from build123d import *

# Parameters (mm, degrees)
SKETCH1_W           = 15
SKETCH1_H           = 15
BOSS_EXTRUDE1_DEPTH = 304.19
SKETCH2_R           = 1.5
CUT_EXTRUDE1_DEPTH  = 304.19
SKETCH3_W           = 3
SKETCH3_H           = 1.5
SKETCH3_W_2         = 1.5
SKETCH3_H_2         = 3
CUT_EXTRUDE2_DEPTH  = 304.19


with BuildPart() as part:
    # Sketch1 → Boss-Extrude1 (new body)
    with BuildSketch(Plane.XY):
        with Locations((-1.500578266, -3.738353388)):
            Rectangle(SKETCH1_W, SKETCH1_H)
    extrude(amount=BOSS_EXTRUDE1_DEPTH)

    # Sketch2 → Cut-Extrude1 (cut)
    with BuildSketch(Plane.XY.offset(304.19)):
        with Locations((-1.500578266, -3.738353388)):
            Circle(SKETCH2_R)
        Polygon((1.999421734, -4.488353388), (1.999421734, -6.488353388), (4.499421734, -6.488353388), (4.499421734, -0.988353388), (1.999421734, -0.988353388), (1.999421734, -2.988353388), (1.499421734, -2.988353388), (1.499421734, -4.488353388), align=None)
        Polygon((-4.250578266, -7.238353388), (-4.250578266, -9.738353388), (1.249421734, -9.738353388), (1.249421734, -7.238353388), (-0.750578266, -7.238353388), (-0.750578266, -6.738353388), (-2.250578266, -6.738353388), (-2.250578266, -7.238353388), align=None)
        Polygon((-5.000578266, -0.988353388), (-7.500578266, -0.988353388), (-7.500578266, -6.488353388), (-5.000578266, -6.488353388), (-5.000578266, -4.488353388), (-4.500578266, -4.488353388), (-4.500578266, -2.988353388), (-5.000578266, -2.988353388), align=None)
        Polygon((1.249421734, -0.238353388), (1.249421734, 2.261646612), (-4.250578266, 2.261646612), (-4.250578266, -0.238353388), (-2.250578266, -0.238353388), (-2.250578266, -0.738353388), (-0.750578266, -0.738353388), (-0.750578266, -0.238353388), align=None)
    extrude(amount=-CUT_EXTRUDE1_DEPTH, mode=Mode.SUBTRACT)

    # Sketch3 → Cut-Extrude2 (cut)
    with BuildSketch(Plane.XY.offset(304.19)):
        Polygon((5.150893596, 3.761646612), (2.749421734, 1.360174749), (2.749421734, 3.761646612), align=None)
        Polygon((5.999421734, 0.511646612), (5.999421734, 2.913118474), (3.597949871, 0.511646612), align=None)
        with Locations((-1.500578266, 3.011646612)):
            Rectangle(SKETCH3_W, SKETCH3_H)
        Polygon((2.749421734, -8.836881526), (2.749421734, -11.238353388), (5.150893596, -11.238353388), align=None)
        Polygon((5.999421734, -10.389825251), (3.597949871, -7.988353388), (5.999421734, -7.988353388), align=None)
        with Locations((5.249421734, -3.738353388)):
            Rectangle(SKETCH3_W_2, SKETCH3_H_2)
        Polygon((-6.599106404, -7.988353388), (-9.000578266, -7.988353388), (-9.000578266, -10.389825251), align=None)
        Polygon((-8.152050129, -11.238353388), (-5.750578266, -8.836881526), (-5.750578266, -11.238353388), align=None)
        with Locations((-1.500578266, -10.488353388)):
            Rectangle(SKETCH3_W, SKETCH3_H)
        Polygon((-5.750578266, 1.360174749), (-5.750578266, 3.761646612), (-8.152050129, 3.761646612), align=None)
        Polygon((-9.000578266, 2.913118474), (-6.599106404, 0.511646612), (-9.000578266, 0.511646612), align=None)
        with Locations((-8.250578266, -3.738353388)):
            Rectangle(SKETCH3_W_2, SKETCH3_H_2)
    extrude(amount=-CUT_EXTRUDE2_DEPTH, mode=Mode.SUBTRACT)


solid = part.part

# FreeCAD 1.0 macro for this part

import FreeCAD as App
import Part
import Sketcher

V = App.Vector
Q = App.Units.Quantity

doc = App.newDocument("Part")
body = doc.addObject("PartDesign::Body", "Body")

# Sketch on XY plane
sketch1 = body.newObject("Sketcher::SketchObject", "Sketch")
sketch1.AttachmentSupport = (doc.getObject("XY_Plane"), [""])
sketch1.MapMode = "FlatFace"
sketch1.addGeometry(Part.LineSegment(V(-9.000578, 3.761647, 0), V(-9.000578, -11.238353, 0)), False)
sketch1.addGeometry(Part.LineSegment(V(-9.000578, -11.238353, 0), V(5.999422, -11.238353, 0)), False)
sketch1.addGeometry(Part.LineSegment(V(5.999422, -11.238353, 0), V(5.999422, 3.761647, 0)), False)
sketch1.addGeometry(Part.LineSegment(V(5.999422, 3.761647, 0), V(-9.000578, 3.761647, 0)), False)
sketch1.addConstraint(Sketcher.Constraint("Coincident", 0, 2, 1, 1))
sketch1.addConstraint(Sketcher.Constraint("Coincident", 1, 2, 2, 1))
sketch1.addConstraint(Sketcher.Constraint("Coincident", 2, 2, 3, 1))
sketch1.addConstraint(Sketcher.Constraint("Coincident", 3, 2, 0, 1))
sketch1.addConstraint(Sketcher.Constraint("Vertical", 0))
sketch1.addConstraint(Sketcher.Constraint("Horizontal", 1))
sketch1.addConstraint(Sketcher.Constraint("Vertical", 2))
sketch1.addConstraint(Sketcher.Constraint("Horizontal", 3))
sketch1.addConstraint(Sketcher.Constraint("Equal", 3, 0))
sketch1.addConstraint(Sketcher.Constraint("DistanceX", 1, 1, 1, 2, Q("15 mm")))
sketch1.addConstraint(Sketcher.Constraint("DistanceX", 0, 2, -1, 1, Q("9.000578 mm")))
sketch1.addConstraint(Sketcher.Constraint("DistanceY", 0, 2, -1, 1, Q("11.238353 mm")))
pad1 = body.newObject("PartDesign::Pad", "Pad")
pad1.Profile = sketch1
pad1.Length = 304.19

# Sketch on XY plane
sketch2 = body.newObject("Sketcher::SketchObject", "Sketch001")
sketch2.AttachmentSupport = (doc.getObject("XY_Plane"), [""])
sketch2.MapMode = "FlatFace"
sketch2.AttachmentOffset = App.Placement(V(0, 0, 304.19), App.Rotation())
sketch2.addGeometry(Part.Circle(V(-1.500578, -3.738353, 0), V(0, 0, 1), 1.5), False)
sketch2.addGeometry(Part.LineSegment(V(1.999422, -4.488353, 0), V(1.999422, -6.488353, 0)), False)
sketch2.addGeometry(Part.LineSegment(V(1.999422, -6.488353, 0), V(4.499422, -6.488353, 0)), False)
sketch2.addGeometry(Part.LineSegment(V(4.499422, -6.488353, 0), V(4.499422, -0.988353, 0)), False)
sketch2.addGeometry(Part.LineSegment(V(4.499422, -0.988353, 0), V(1.999422, -0.988353, 0)), False)
sketch2.addGeometry(Part.LineSegment(V(1.999422, -0.988353, 0), V(1.999422, -2.988353, 0)), False)
sketch2.addGeometry(Part.LineSegment(V(1.999422, -2.988353, 0), V(1.499422, -2.988353, 0)), False)
sketch2.addGeometry(Part.LineSegment(V(1.499422, -2.988353, 0), V(1.499422, -4.488353, 0)), False)
sketch2.addGeometry(Part.LineSegment(V(1.499422, -4.488353, 0), V(1.999422, -4.488353, 0)), False)
sketch2.addGeometry(Part.LineSegment(V(-4.250578, -7.238353, 0), V(-4.250578, -9.738353, 0)), False)
sketch2.addGeometry(Part.LineSegment(V(-4.250578, -9.738353, 0), V(1.249422, -9.738353, 0)), False)
sketch2.addGeometry(Part.LineSegment(V(1.249422, -9.738353, 0), V(1.249422, -7.238353, 0)), False)
sketch2.addGeometry(Part.LineSegment(V(1.249422, -7.238353, 0), V(-0.750578, -7.238353, 0)), False)
sketch2.addGeometry(Part.LineSegment(V(-0.750578, -7.238353, 0), V(-0.750578, -6.738353, 0)), False)
sketch2.addGeometry(Part.LineSegment(V(-0.750578, -6.738353, 0), V(-2.250578, -6.738353, 0)), False)
sketch2.addGeometry(Part.LineSegment(V(-2.250578, -6.738353, 0), V(-2.250578, -7.238353, 0)), False)
sketch2.addGeometry(Part.LineSegment(V(-2.250578, -7.238353, 0), V(-4.250578, -7.238353, 0)), False)
sketch2.addGeometry(Part.LineSegment(V(-5.000578, -0.988353, 0), V(-7.500578, -0.988353, 0)), False)
sketch2.addGeometry(Part.LineSegment(V(-7.500578, -0.988353, 0), V(-7.500578, -6.488353, 0)), False)
sketch2.addGeometry(Part.LineSegment(V(-7.500578, -6.488353, 0), V(-5.000578, -6.488353, 0)), False)
sketch2.addGeometry(Part.LineSegment(V(-5.000578, -6.488353, 0), V(-5.000578, -4.488353, 0)), False)
sketch2.addGeometry(Part.LineSegment(V(-5.000578, -4.488353, 0), V(-4.500578, -4.488353, 0)), False)
sketch2.addGeometry(Part.LineSegment(V(-4.500578, -4.488353, 0), V(-4.500578, -2.988353, 0)), False)
sketch2.addGeometry(Part.LineSegment(V(-4.500578, -2.988353, 0), V(-5.000578, -2.988353, 0)), False)
sketch2.addGeometry(Part.LineSegment(V(-5.000578, -2.988353, 0), V(-5.000578, -0.988353, 0)), False)
sketch2.addGeometry(Part.LineSegment(V(1.249422, -0.238353, 0), V(1.249422, 2.261647, 0)), False)
sketch2.addGeometry(Part.LineSegment(V(1.249422, 2.261647, 0), V(-4.250578, 2.261647, 0)), False)
sketch2.addGeometry(Part.LineSegment(V(-4.250578, 2.261647, 0), V(-4.250578, -0.238353, 0)), False)
sketch2.addGeometry(Part.LineSegment(V(-4.250578, -0.238353, 0), V(-2.250578, -0.238353, 0)), False)
sketch2.addGeometry(Part.LineSegment(V(-2.250578, -0.238353, 0), V(-2.250578, -0.738353, 0)), False)
sketch2.addGeometry(Part.LineSegment(V(-2.250578, -0.738353, 0), V(-0.750578, -0.738353, 0)), False)
sketch2.addGeometry(Part.LineSegment(V(-0.750578, -0.738353, 0), V(-0.750578, -0.238353, 0)), False)
sketch2.addGeometry(Part.LineSegment(V(-0.750578, -0.238353, 0), V(1.249422, -0.238353, 0)), False)
sketch2.addConstraint(Sketcher.Constraint("Coincident", 1, 2, 2, 1))
sketch2.addConstraint(Sketcher.Constraint("Coincident", 2, 2, 3, 1))
sketch2.addConstraint(Sketcher.Constraint("Coincident", 3, 2, 4, 1))
sketch2.addConstraint(Sketcher.Constraint("Coincident", 4, 2, 5, 1))
sketch2.addConstraint(Sketcher.Constraint("Coincident", 5, 2, 6, 1))
sketch2.addConstraint(Sketcher.Constraint("Coincident", 6, 2, 7, 1))
sketch2.addConstraint(Sketcher.Constraint("Coincident", 7, 2, 8, 1))
sketch2.addConstraint(Sketcher.Constraint("Coincident", 8, 2, 1, 1))
sketch2.addConstraint(Sketcher.Constraint("Coincident", 9, 2, 10, 1))
sketch2.addConstraint(Sketcher.Constraint("Coincident", 10, 2, 11, 1))
sketch2.addConstraint(Sketcher.Constraint("Coincident", 11, 2, 12, 1))
sketch2.addConstraint(Sketcher.Constraint("Coincident", 12, 2, 13, 1))
sketch2.addConstraint(Sketcher.Constraint("Coincident", 13, 2, 14, 1))
sketch2.addConstraint(Sketcher.Constraint("Coincident", 14, 2, 15, 1))
sketch2.addConstraint(Sketcher.Constraint("Coincident", 15, 2, 16, 1))
sketch2.addConstraint(Sketcher.Constraint("Coincident", 16, 2, 9, 1))
sketch2.addConstraint(Sketcher.Constraint("Coincident", 17, 2, 18, 1))
sketch2.addConstraint(Sketcher.Constraint("Coincident", 18, 2, 19, 1))
sketch2.addConstraint(Sketcher.Constraint("Coincident", 19, 2, 20, 1))
sketch2.addConstraint(Sketcher.Constraint("Coincident", 20, 2, 21, 1))
sketch2.addConstraint(Sketcher.Constraint("Coincident", 21, 2, 22, 1))
sketch2.addConstraint(Sketcher.Constraint("Coincident", 22, 2, 23, 1))
sketch2.addConstraint(Sketcher.Constraint("Coincident", 23, 2, 24, 1))
sketch2.addConstraint(Sketcher.Constraint("Coincident", 24, 2, 17, 1))
sketch2.addConstraint(Sketcher.Constraint("Coincident", 25, 2, 26, 1))
sketch2.addConstraint(Sketcher.Constraint("Coincident", 26, 2, 27, 1))
sketch2.addConstraint(Sketcher.Constraint("Coincident", 27, 2, 28, 1))
sketch2.addConstraint(Sketcher.Constraint("Coincident", 28, 2, 29, 1))
sketch2.addConstraint(Sketcher.Constraint("Coincident", 29, 2, 30, 1))
sketch2.addConstraint(Sketcher.Constraint("Coincident", 30, 2, 31, 1))
sketch2.addConstraint(Sketcher.Constraint("Coincident", 31, 2, 32, 1))
sketch2.addConstraint(Sketcher.Constraint("Coincident", 32, 2, 25, 1))
sketch2.addConstraint(Sketcher.Constraint("Vertical", 1))
sketch2.addConstraint(Sketcher.Constraint("Horizontal", 2))
sketch2.addConstraint(Sketcher.Constraint("Vertical", 3))
sketch2.addConstraint(Sketcher.Constraint("Horizontal", 4))
sketch2.addConstraint(Sketcher.Constraint("Vertical", 5))
sketch2.addConstraint(Sketcher.Constraint("Horizontal", 6))
sketch2.addConstraint(Sketcher.Constraint("Vertical", 7))
sketch2.addConstraint(Sketcher.Constraint("Horizontal", 8))
sketch2.addConstraint(Sketcher.Constraint("Vertical", 9))
sketch2.addConstraint(Sketcher.Constraint("Horizontal", 10))
sketch2.addConstraint(Sketcher.Constraint("Vertical", 11))
sketch2.addConstraint(Sketcher.Constraint("Horizontal", 12))
sketch2.addConstraint(Sketcher.Constraint("Vertical", 13))
sketch2.addConstraint(Sketcher.Constraint("Horizontal", 14))
sketch2.addConstraint(Sketcher.Constraint("Vertical", 15))
sketch2.addConstraint(Sketcher.Constraint("Horizontal", 16))
sketch2.addConstraint(Sketcher.Constraint("Horizontal", 17))
sketch2.addConstraint(Sketcher.Constraint("Vertical", 18))
sketch2.addConstraint(Sketcher.Constraint("Horizontal", 19))
sketch2.addConstraint(Sketcher.Constraint("Vertical", 20))
sketch2.addConstraint(Sketcher.Constraint("Horizontal", 21))
sketch2.addConstraint(Sketcher.Constraint("Vertical", 22))
sketch2.addConstraint(Sketcher.Constraint("Horizontal", 23))
sketch2.addConstraint(Sketcher.Constraint("Vertical", 24))
sketch2.addConstraint(Sketcher.Constraint("Vertical", 25))
sketch2.addConstraint(Sketcher.Constraint("Horizontal", 26))
sketch2.addConstraint(Sketcher.Constraint("Vertical", 27))
sketch2.addConstraint(Sketcher.Constraint("Horizontal", 28))
sketch2.addConstraint(Sketcher.Constraint("Vertical", 29))
sketch2.addConstraint(Sketcher.Constraint("Horizontal", 30))
sketch2.addConstraint(Sketcher.Constraint("Vertical", 31))
sketch2.addConstraint(Sketcher.Constraint("Horizontal", 32))
sketch2.addConstraint(Sketcher.Constraint("Horizontal", 12, 2, 15, 2))
sketch2.addConstraint(Sketcher.Constraint("Horizontal", 4, 2, 17, 2))
sketch2.addConstraint(Sketcher.Constraint("Horizontal", 2, 2, 18, 2))
sketch2.addConstraint(Sketcher.Constraint("Horizontal", 8, 2, 20, 2))
sketch2.addConstraint(Sketcher.Constraint("Horizontal", 6, 2, 22, 2))
sketch2.addConstraint(Sketcher.Constraint("Horizontal", 28, 2, 31, 2))
sketch2.addConstraint(Sketcher.Constraint("Vertical", 1, 2, 4, 2))
sketch2.addConstraint(Sketcher.Constraint("Vertical", 20, 2, 23, 2))
sketch2.addConstraint(Sketcher.Constraint("Vertical", 11, 2, 25, 2))
sketch2.addConstraint(Sketcher.Constraint("Vertical", 16, 2, 26, 2))
sketch2.addConstraint(Sketcher.Constraint("Vertical", 15, 2, 28, 2))
sketch2.addConstraint(Sketcher.Constraint("Vertical", 13, 2, 30, 2))
sketch2.addConstraint(Sketcher.Constraint("Equal", 12, 16))
sketch2.addConstraint(Sketcher.Constraint("Equal", 4, 17))
sketch2.addConstraint(Sketcher.Constraint("Equal", 8, 21))
sketch2.addConstraint(Sketcher.Constraint("Equal", 32, 1))
sketch2.addConstraint(Sketcher.Constraint("Equal", 26, 3))
sketch2.addConstraint(Sketcher.Constraint("Equal", 1, 5))
sketch2.addConstraint(Sketcher.Constraint("Equal", 19, 9))
sketch2.addConstraint(Sketcher.Constraint("Equal", 23, 13))
sketch2.addConstraint(Sketcher.Constraint("Equal", 11, 25))
sketch2.addConstraint(Sketcher.Constraint("Equal", 15, 29))
sketch2.addConstraint(Sketcher.Constraint("Diameter", 0, Q("3 mm")))
sketch2.addConstraint(Sketcher.Constraint("DistanceX", 12, 2, 12, 1, Q("2 mm")))
sketch2.addConstraint(Sketcher.Constraint("DistanceX", 2, 1, 2, 2, Q("2.5 mm")))
sketch2.addConstraint(Sketcher.Constraint("DistanceX", 6, 2, 6, 1, Q("0.5 mm")))
sketch2.addConstraint(Sketcher.Constraint("DistanceX", 10, 1, 10, 2, Q("5.5 mm")))
sketch2.addConstraint(Sketcher.Constraint("DistanceX", 0, 3, 2, 2, Q("6 mm")))
sketch2.addConstraint(Sketcher.Constraint("DistanceY", 9, 2, 0, 3, Q("6 mm")))
sketch2.addConstraint(Sketcher.Constraint("DistanceX", 17, 2, 0, 3, Q("6 mm")))
sketch2.addConstraint(Sketcher.Constraint("DistanceY", 0, 3, 25, 2, Q("6 mm")))
sketch2.addConstraint(Sketcher.Constraint("DistanceY", 1, 2, 0, 3, Q("2.75 mm")))
sketch2.addConstraint(Sketcher.Constraint("DistanceX", 9, 2, 0, 3, Q("2.75 mm")))
sketch2.addConstraint(Sketcher.Constraint("DistanceX", 0, 3, -1, 1, Q("1.500578 mm")))
sketch2.addConstraint(Sketcher.Constraint("DistanceY", 0, 3, -1, 1, Q("3.738353 mm")))
pocket1 = body.newObject("PartDesign::Pocket", "Pocket")
pocket1.Profile = sketch2
pocket1.Length = 304.19

# Sketch on XY plane
sketch3 = body.newObject("Sketcher::SketchObject", "Sketch002")
sketch3.AttachmentSupport = (doc.getObject("XY_Plane"), [""])
sketch3.MapMode = "FlatFace"
sketch3.AttachmentOffset = App.Placement(V(0, 0, 304.19), App.Rotation())
sketch3.addGeometry(Part.LineSegment(V(2.749422, 1.360175, 0), V(5.150894, 3.761647, 0)), False)
sketch3.addGeometry(Part.LineSegment(V(5.150894, 3.761647, 0), V(2.749422, 3.761647, 0)), False)
sketch3.addGeometry(Part.LineSegment(V(2.749422, 3.761647, 0), V(2.749422, 1.360175, 0)), False)
sketch3.addGeometry(Part.LineSegment(V(5.999422, 0.511647, 0), V(5.999422, 2.913118, 0)), False)
sketch3.addGeometry(Part.LineSegment(V(5.999422, 2.913118, 0), V(3.59795, 0.511647, 0)), False)
sketch3.addGeometry(Part.LineSegment(V(3.59795, 0.511647, 0), V(5.999422, 0.511647, 0)), False)
sketch3.addGeometry(Part.LineSegment(V(-3.000578, 3.761647, 0), V(-3.000578, 2.261647, 0)), False)
sketch3.addGeometry(Part.LineSegment(V(-3.000578, 2.261647, 0), V(-0.000578, 2.261647, 0)), False)
sketch3.addGeometry(Part.LineSegment(V(-0.000578, 2.261647, 0), V(-0.000578, 3.761647, 0)), False)
sketch3.addGeometry(Part.LineSegment(V(-0.000578, 3.761647, 0), V(-3.000578, 3.761647, 0)), False)
sketch3.addGeometry(Part.LineSegment(V(2.749422, -8.836882, 0), V(2.749422, -11.238353, 0)), False)
sketch3.addGeometry(Part.LineSegment(V(2.749422, -11.238353, 0), V(5.150894, -11.238353, 0)), False)
sketch3.addGeometry(Part.LineSegment(V(5.150894, -11.238353, 0), V(2.749422, -8.836882, 0)), False)
sketch3.addGeometry(Part.LineSegment(V(3.59795, -7.988353, 0), V(5.999422, -10.389825, 0)), False)
sketch3.addGeometry(Part.LineSegment(V(5.999422, -10.389825, 0), V(5.999422, -7.988353, 0)), False)
sketch3.addGeometry(Part.LineSegment(V(5.999422, -7.988353, 0), V(3.59795, -7.988353, 0)), False)
sketch3.addGeometry(Part.LineSegment(V(4.499422, -2.238353, 0), V(4.499422, -5.238353, 0)), False)
sketch3.addGeometry(Part.LineSegment(V(4.499422, -5.238353, 0), V(5.999422, -5.238353, 0)), False)
sketch3.addGeometry(Part.LineSegment(V(5.999422, -5.238353, 0), V(5.999422, -2.238353, 0)), False)
sketch3.addGeometry(Part.LineSegment(V(5.999422, -2.238353, 0), V(4.499422, -2.238353, 0)), False)
sketch3.addGeometry(Part.LineSegment(V(-6.599106, -7.988353, 0), V(-9.000578, -7.988353, 0)), False)
sketch3.addGeometry(Part.LineSegment(V(-9.000578, -7.988353, 0), V(-9.000578, -10.389825, 0)), False)
sketch3.addGeometry(Part.LineSegment(V(-9.000578, -10.389825, 0), V(-6.599106, -7.988353, 0)), False)
sketch3.addGeometry(Part.LineSegment(V(-5.750578, -8.836882, 0), V(-8.15205, -11.238353, 0)), False)
sketch3.addGeometry(Part.LineSegment(V(-8.15205, -11.238353, 0), V(-5.750578, -11.238353, 0)), False)
sketch3.addGeometry(Part.LineSegment(V(-5.750578, -11.238353, 0), V(-5.750578, -8.836882, 0)), False)
sketch3.addGeometry(Part.LineSegment(V(-3.000578, -9.738353, 0), V(-3.000578, -11.238353, 0)), False)
sketch3.addGeometry(Part.LineSegment(V(-3.000578, -11.238353, 0), V(-0.000578, -11.238353, 0)), False)
sketch3.addGeometry(Part.LineSegment(V(-0.000578, -11.238353, 0), V(-0.000578, -9.738353, 0)), False)
sketch3.addGeometry(Part.LineSegment(V(-0.000578, -9.738353, 0), V(-3.000578, -9.738353, 0)), False)
sketch3.addGeometry(Part.LineSegment(V(-5.750578, 1.360175, 0), V(-5.750578, 3.761647, 0)), False)
sketch3.addGeometry(Part.LineSegment(V(-5.750578, 3.761647, 0), V(-8.15205, 3.761647, 0)), False)
sketch3.addGeometry(Part.LineSegment(V(-8.15205, 3.761647, 0), V(-5.750578, 1.360175, 0)), False)
sketch3.addGeometry(Part.LineSegment(V(-6.599106, 0.511647, 0), V(-9.000578, 2.913118, 0)), False)
sketch3.addGeometry(Part.LineSegment(V(-9.000578, 2.913118, 0), V(-9.000578, 0.511647, 0)), False)
sketch3.addGeometry(Part.LineSegment(V(-9.000578, 0.511647, 0), V(-6.599106, 0.511647, 0)), False)
sketch3.addGeometry(Part.LineSegment(V(-9.000578, -2.238353, 0), V(-9.000578, -5.238353, 0)), False)
sketch3.addGeometry(Part.LineSegment(V(-9.000578, -5.238353, 0), V(-7.500578, -5.238353, 0)), False)
sketch3.addGeometry(Part.LineSegment(V(-7.500578, -5.238353, 0), V(-7.500578, -2.238353, 0)), False)
sketch3.addGeometry(Part.LineSegment(V(-7.500578, -2.238353, 0), V(-9.000578, -2.238353, 0)), False)
sketch3.addConstraint(Sketcher.Constraint("Coincident", 0, 2, 1, 1))
sketch3.addConstraint(Sketcher.Constraint("Coincident", 1, 2, 2, 1))
sketch3.addConstraint(Sketcher.Constraint("Coincident", 2, 2, 0, 1))
sketch3.addConstraint(Sketcher.Constraint("Coincident", 3, 2, 4, 1))
sketch3.addConstraint(Sketcher.Constraint("Coincident", 4, 2, 5, 1))
sketch3.addConstraint(Sketcher.Constraint("Coincident", 5, 2, 3, 1))
sketch3.addConstraint(Sketcher.Constraint("Coincident", 6, 2, 7, 1))
sketch3.addConstraint(Sketcher.Constraint("Coincident", 7, 2, 8, 1))
sketch3.addConstraint(Sketcher.Constraint("Coincident", 8, 2, 9, 1))
sketch3.addConstraint(Sketcher.Constraint("Coincident", 9, 2, 6, 1))
sketch3.addConstraint(Sketcher.Constraint("Coincident", 10, 2, 11, 1))
sketch3.addConstraint(Sketcher.Constraint("Coincident", 11, 2, 12, 1))
sketch3.addConstraint(Sketcher.Constraint("Coincident", 12, 2, 10, 1))
sketch3.addConstraint(Sketcher.Constraint("Coincident", 13, 2, 14, 1))
sketch3.addConstraint(Sketcher.Constraint("Coincident", 14, 2, 15, 1))
sketch3.addConstraint(Sketcher.Constraint("Coincident", 15, 2, 13, 1))
sketch3.addConstraint(Sketcher.Constraint("Coincident", 16, 2, 17, 1))
sketch3.addConstraint(Sketcher.Constraint("Coincident", 17, 2, 18, 1))
sketch3.addConstraint(Sketcher.Constraint("Coincident", 18, 2, 19, 1))
sketch3.addConstraint(Sketcher.Constraint("Coincident", 19, 2, 16, 1))
sketch3.addConstraint(Sketcher.Constraint("Coincident", 20, 2, 21, 1))
sketch3.addConstraint(Sketcher.Constraint("Coincident", 21, 2, 22, 1))
sketch3.addConstraint(Sketcher.Constraint("Coincident", 22, 2, 20, 1))
sketch3.addConstraint(Sketcher.Constraint("Coincident", 23, 2, 24, 1))
sketch3.addConstraint(Sketcher.Constraint("Coincident", 24, 2, 25, 1))
sketch3.addConstraint(Sketcher.Constraint("Coincident", 25, 2, 23, 1))
sketch3.addConstraint(Sketcher.Constraint("Coincident", 26, 2, 27, 1))
sketch3.addConstraint(Sketcher.Constraint("Coincident", 27, 2, 28, 1))
sketch3.addConstraint(Sketcher.Constraint("Coincident", 28, 2, 29, 1))
sketch3.addConstraint(Sketcher.Constraint("Coincident", 29, 2, 26, 1))
sketch3.addConstraint(Sketcher.Constraint("Coincident", 30, 2, 31, 1))
sketch3.addConstraint(Sketcher.Constraint("Coincident", 31, 2, 32, 1))
sketch3.addConstraint(Sketcher.Constraint("Coincident", 32, 2, 30, 1))
sketch3.addConstraint(Sketcher.Constraint("Coincident", 33, 2, 34, 1))
sketch3.addConstraint(Sketcher.Constraint("Coincident", 34, 2, 35, 1))
sketch3.addConstraint(Sketcher.Constraint("Coincident", 35, 2, 33, 1))
sketch3.addConstraint(Sketcher.Constraint("Coincident", 36, 2, 37, 1))
sketch3.addConstraint(Sketcher.Constraint("Coincident", 37, 2, 38, 1))
sketch3.addConstraint(Sketcher.Constraint("Coincident", 38, 2, 39, 1))
sketch3.addConstraint(Sketcher.Constraint("Coincident", 39, 2, 36, 1))
sketch3.addConstraint(Sketcher.Constraint("Horizontal", 1))
sketch3.addConstraint(Sketcher.Constraint("Vertical", 2))
sketch3.addConstraint(Sketcher.Constraint("Vertical", 3))
sketch3.addConstraint(Sketcher.Constraint("Horizontal", 5))
sketch3.addConstraint(Sketcher.Constraint("Vertical", 6))
sketch3.addConstraint(Sketcher.Constraint("Horizontal", 7))
sketch3.addConstraint(Sketcher.Constraint("Vertical", 8))
sketch3.addConstraint(Sketcher.Constraint("Horizontal", 9))
sketch3.addConstraint(Sketcher.Constraint("Vertical", 10))
sketch3.addConstraint(Sketcher.Constraint("Horizontal", 11))
sketch3.addConstraint(Sketcher.Constraint("Vertical", 14))
sketch3.addConstraint(Sketcher.Constraint("Horizontal", 15))
sketch3.addConstraint(Sketcher.Constraint("Vertical", 16))
sketch3.addConstraint(Sketcher.Constraint("Horizontal", 17))
sketch3.addConstraint(Sketcher.Constraint("Vertical", 18))
sketch3.addConstraint(Sketcher.Constraint("Horizontal", 19))
sketch3.addConstraint(Sketcher.Constraint("Horizontal", 20))
sketch3.addConstraint(Sketcher.Constraint("Vertical", 21))
sketch3.addConstraint(Sketcher.Constraint("Horizontal", 24))
sketch3.addConstraint(Sketcher.Constraint("Vertical", 25))
sketch3.addConstraint(Sketcher.Constraint("Vertical", 26))
sketch3.addConstraint(Sketcher.Constraint("Horizontal", 27))
sketch3.addConstraint(Sketcher.Constraint("Vertical", 28))
sketch3.addConstraint(Sketcher.Constraint("Horizontal", 29))
sketch3.addConstraint(Sketcher.Constraint("Vertical", 30))
sketch3.addConstraint(Sketcher.Constraint("Horizontal", 31))
sketch3.addConstraint(Sketcher.Constraint("Vertical", 34))
sketch3.addConstraint(Sketcher.Constraint("Horizontal", 35))
sketch3.addConstraint(Sketcher.Constraint("Vertical", 36))
sketch3.addConstraint(Sketcher.Constraint("Horizontal", 37))
sketch3.addConstraint(Sketcher.Constraint("Vertical", 38))
sketch3.addConstraint(Sketcher.Constraint("Horizontal", 39))
sketch3.addConstraint(Sketcher.Constraint("Parallel", 0, 4))
sketch3.addConstraint(Sketcher.Constraint("Perpendicular", 4, 12))
sketch3.addConstraint(Sketcher.Constraint("Parallel", 12, 13))
sketch3.addConstraint(Sketcher.Constraint("Perpendicular", 13, 22))
sketch3.addConstraint(Sketcher.Constraint("Parallel", 22, 23))
sketch3.addConstraint(Sketcher.Constraint("Perpendicular", 23, 32))
sketch3.addConstraint(Sketcher.Constraint("Parallel", 32, 33))
sketch3.addConstraint(Sketcher.Constraint("Horizontal", 1, 2, 8, 2))
sketch3.addConstraint(Sketcher.Constraint("Horizontal", 15, 2, 20, 2))
sketch3.addConstraint(Sketcher.Constraint("Horizontal", 13, 2, 21, 2))
sketch3.addConstraint(Sketcher.Constraint("Horizontal", 11, 2, 23, 2))
sketch3.addConstraint(Sketcher.Constraint("Horizontal", 12, 2, 25, 2))
sketch3.addConstraint(Sketcher.Constraint("Horizontal", 24, 2, 26, 2))
sketch3.addConstraint(Sketcher.Constraint("Horizontal", 9, 2, 30, 2))
sketch3.addConstraint(Sketcher.Constraint("Horizontal", 2, 2, 32, 2))
sketch3.addConstraint(Sketcher.Constraint("Horizontal", 3, 2, 33, 2))
sketch3.addConstraint(Sketcher.Constraint("Horizontal", 5, 2, 34, 2))
sketch3.addConstraint(Sketcher.Constraint("Horizontal", 17, 2, 36, 2))
sketch3.addConstraint(Sketcher.Constraint("Horizontal", 19, 2, 38, 2))
sketch3.addConstraint(Sketcher.Constraint("Vertical", 2, 2, 10, 2))
sketch3.addConstraint(Sketcher.Constraint("Vertical", 0, 2, 11, 2))
sketch3.addConstraint(Sketcher.Constraint("Vertical", 5, 2, 13, 2))
sketch3.addConstraint(Sketcher.Constraint("Vertical", 4, 2, 15, 2))
sketch3.addConstraint(Sketcher.Constraint("Vertical", 14, 2, 17, 2))
sketch3.addConstraint(Sketcher.Constraint("Vertical", 9, 2, 26, 2))
sketch3.addConstraint(Sketcher.Constraint("Vertical", 8, 2, 27, 2))
sketch3.addConstraint(Sketcher.Constraint("Vertical", 25, 2, 30, 2))
sketch3.addConstraint(Sketcher.Constraint("Vertical", 23, 2, 31, 2))
sketch3.addConstraint(Sketcher.Constraint("Vertical", 21, 2, 33, 2))
sketch3.addConstraint(Sketcher.Constraint("Vertical", 34, 2, 36, 2))
sketch3.addConstraint(Sketcher.Constraint("Equal", 1, 5))
sketch3.addConstraint(Sketcher.Constraint("Equal", 19, 37))
sketch3.addConstraint(Sketcher.Constraint("Equal", 39, 6))
sketch3.addConstraint(Sketcher.Constraint("Equal", 29, 16))
sketch3.addConstraint(Sketcher.Constraint("Equal", 8, 26))
sketch3.addConstraint(Sketcher.Constraint("DistanceX", 7, 1, 7, 2, Q("3 mm")))
sketch3.addConstraint(Sketcher.Constraint("DistanceX", 17, 1, 17, 2, Q("1.5 mm")))
sketch3.addConstraint(Sketcher.Constraint("DistanceX", 6, 2, 3, 2, Q("9 mm")))
sketch3.addConstraint(Sketcher.Constraint("DistanceX", 20, 2, 6, 2, Q("6 mm")))
sketch3.addConstraint(Sketcher.Constraint("DistanceY", 10, 2, 7, 2, Q("13.5 mm")))
sketch3.addConstraint(Sketcher.Constraint("DistanceY", 14, 2, 5, 2, Q("8.5 mm")))
sketch3.addConstraint(Sketcher.Constraint("DistanceX", 24, 2, 10, 2, Q("8.5 mm")))
sketch3.addConstraint(Sketcher.Constraint("DistanceX", 1, 2, 3, 2, Q("3.25 mm")))
sketch3.addConstraint(Sketcher.Constraint("DistanceY", 4, 2, 1, 2, Q("3.25 mm")))
sketch3.addConstraint(Sketcher.Constraint("DistanceY", 15, 2, 16, 2, Q("2.75 mm")))
sketch3.addConstraint(Sketcher.Constraint("DistanceX", 1, 2, 1, 1, Q("2.401472 mm")))
sketch3.addConstraint(Sketcher.Constraint("DistanceX", -1, 1, 1, 2, Q("2.749422 mm")))
sketch3.addConstraint(Sketcher.Constraint("DistanceY", -1, 1, 3, 2, Q("2.913118 mm")))
pocket2 = body.newObject("PartDesign::Pocket", "Pocket001")
pocket2.Profile = sketch3
pocket2.Length = 304.19

doc.recompute()
